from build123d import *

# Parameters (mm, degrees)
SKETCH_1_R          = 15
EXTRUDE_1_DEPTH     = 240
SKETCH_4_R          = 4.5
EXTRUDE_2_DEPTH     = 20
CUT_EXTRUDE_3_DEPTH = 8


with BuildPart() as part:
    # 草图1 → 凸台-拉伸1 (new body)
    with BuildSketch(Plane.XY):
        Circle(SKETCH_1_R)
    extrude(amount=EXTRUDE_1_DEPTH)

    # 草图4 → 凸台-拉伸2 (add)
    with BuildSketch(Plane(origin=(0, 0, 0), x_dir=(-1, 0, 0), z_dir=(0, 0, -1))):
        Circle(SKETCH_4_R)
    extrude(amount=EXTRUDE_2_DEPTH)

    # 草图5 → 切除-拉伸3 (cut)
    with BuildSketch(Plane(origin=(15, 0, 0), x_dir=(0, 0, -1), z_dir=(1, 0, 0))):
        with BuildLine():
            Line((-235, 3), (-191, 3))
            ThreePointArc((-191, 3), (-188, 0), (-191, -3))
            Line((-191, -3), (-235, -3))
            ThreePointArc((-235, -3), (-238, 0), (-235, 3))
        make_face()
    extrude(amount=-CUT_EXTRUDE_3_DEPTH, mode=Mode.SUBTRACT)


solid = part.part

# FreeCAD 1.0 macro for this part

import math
import FreeCAD as App
import Part
import Sketcher
from FreeCAD import Vector
Q = App.Units.Quantity

doc = App.newDocument("Part")
body = doc.addObject("PartDesign::Body", "Body")

sketch1 = body.newObject("Sketcher::SketchObject", "Sketch")
sketch1.AttachmentSupport = (doc.getObject("XY_Plane"), [""])
sketch1.MapMode = "FlatFace"
sketch1.addGeometry(Part.Circle(Vector(0, 0, 0), Vector(0, 0, 1), 15), False)
sketch1.addConstraint(Sketcher.Constraint("Coincident", 0, 3, -1, 1))
sketch1.addConstraint(Sketcher.Constraint("Diameter", 0, Q("30 mm")))
pad1 = body.newObject("PartDesign::Pad", "Pad")
pad1.Profile = sketch1
pad1.Length = 240

sketch2 = body.newObject("Sketcher::SketchObject", "Sketch001")
sketch2.AttachmentSupport = (doc.getObject("XY_Plane"), [""])
sketch2.MapMode = "FlatFace"
sketch2.addGeometry(Part.Circle(Vector(0, 0, 0), Vector(0, 0, 1), 4.5), False)
sketch2.addConstraint(Sketcher.Constraint("Coincident", 0, 3, -1, 1))
sketch2.addConstraint(Sketcher.Constraint("Diameter", 0, Q("9 mm")))
pad2 = body.newObject("PartDesign::Pad", "Pad001")
pad2.Profile = sketch2
pad2.Length = 20
pad2.Reversed = True

sketch3 = body.newObject("Sketcher::SketchObject", "Sketch002")
sketch3.AttachmentSupport = (doc.getObject("YZ_Plane"), [""])
sketch3.MapMode = "FlatFace"
sketch3.AttachmentOffset = App.Placement(Vector(0, 0, 15), App.Rotation())
sketch3.addGeometry(Part.LineSegment(Vector(3, 191, 0), Vector(3, 235, 0)), False)
sketch3.addGeometry(Part.ArcOfCircle(Part.Circle(Vector(0, 235, 0), Vector(0, 0, 1), 3), math.radians(0), math.radians(180)), False)
sketch3.addGeometry(Part.LineSegment(Vector(-3, 235, 0), Vector(-3, 191, 0)), False)
sketch3.addGeometry(Part.ArcOfCircle(Part.Circle(Vector(0, 191, 0), Vector(0, 0, 1), 3), math.radians(180), math.radians(360)), False)
sketch3.addConstraint(Sketcher.Constraint("Tangent", 0, 2, 1, 1))
sketch3.addConstraint(Sketcher.Constraint("Tangent", 1, 2, 2, 1))
sketch3.addConstraint(Sketcher.Constraint("Tangent", 2, 2, 3, 1))
sketch3.addConstraint(Sketcher.Constraint("Tangent", 3, 2, 0, 1))
sketch3.addConstraint(Sketcher.Constraint("Vertical", 0))
sketch3.addConstraint(Sketcher.Constraint("Vertical", 2))
sketch3.addConstraint(Sketcher.Constraint("PointOnObject", 1, 3, -2))
sketch3.addConstraint(Sketcher.Constraint("Radius", 1, Q("3 mm")))
sketch3.addConstraint(Sketcher.Constraint("DistanceY", 0, 1, 0, 2, Q("44 mm")))
sketch3.addConstraint(Sketcher.Constraint("DistanceY", -1, 1, 1, 3, Q("235 mm")))
pocket1 = body.newObject("PartDesign::Pocket", "Pocket")
pocket1.Profile = sketch3
pocket1.Length = 8

doc.recompute()
